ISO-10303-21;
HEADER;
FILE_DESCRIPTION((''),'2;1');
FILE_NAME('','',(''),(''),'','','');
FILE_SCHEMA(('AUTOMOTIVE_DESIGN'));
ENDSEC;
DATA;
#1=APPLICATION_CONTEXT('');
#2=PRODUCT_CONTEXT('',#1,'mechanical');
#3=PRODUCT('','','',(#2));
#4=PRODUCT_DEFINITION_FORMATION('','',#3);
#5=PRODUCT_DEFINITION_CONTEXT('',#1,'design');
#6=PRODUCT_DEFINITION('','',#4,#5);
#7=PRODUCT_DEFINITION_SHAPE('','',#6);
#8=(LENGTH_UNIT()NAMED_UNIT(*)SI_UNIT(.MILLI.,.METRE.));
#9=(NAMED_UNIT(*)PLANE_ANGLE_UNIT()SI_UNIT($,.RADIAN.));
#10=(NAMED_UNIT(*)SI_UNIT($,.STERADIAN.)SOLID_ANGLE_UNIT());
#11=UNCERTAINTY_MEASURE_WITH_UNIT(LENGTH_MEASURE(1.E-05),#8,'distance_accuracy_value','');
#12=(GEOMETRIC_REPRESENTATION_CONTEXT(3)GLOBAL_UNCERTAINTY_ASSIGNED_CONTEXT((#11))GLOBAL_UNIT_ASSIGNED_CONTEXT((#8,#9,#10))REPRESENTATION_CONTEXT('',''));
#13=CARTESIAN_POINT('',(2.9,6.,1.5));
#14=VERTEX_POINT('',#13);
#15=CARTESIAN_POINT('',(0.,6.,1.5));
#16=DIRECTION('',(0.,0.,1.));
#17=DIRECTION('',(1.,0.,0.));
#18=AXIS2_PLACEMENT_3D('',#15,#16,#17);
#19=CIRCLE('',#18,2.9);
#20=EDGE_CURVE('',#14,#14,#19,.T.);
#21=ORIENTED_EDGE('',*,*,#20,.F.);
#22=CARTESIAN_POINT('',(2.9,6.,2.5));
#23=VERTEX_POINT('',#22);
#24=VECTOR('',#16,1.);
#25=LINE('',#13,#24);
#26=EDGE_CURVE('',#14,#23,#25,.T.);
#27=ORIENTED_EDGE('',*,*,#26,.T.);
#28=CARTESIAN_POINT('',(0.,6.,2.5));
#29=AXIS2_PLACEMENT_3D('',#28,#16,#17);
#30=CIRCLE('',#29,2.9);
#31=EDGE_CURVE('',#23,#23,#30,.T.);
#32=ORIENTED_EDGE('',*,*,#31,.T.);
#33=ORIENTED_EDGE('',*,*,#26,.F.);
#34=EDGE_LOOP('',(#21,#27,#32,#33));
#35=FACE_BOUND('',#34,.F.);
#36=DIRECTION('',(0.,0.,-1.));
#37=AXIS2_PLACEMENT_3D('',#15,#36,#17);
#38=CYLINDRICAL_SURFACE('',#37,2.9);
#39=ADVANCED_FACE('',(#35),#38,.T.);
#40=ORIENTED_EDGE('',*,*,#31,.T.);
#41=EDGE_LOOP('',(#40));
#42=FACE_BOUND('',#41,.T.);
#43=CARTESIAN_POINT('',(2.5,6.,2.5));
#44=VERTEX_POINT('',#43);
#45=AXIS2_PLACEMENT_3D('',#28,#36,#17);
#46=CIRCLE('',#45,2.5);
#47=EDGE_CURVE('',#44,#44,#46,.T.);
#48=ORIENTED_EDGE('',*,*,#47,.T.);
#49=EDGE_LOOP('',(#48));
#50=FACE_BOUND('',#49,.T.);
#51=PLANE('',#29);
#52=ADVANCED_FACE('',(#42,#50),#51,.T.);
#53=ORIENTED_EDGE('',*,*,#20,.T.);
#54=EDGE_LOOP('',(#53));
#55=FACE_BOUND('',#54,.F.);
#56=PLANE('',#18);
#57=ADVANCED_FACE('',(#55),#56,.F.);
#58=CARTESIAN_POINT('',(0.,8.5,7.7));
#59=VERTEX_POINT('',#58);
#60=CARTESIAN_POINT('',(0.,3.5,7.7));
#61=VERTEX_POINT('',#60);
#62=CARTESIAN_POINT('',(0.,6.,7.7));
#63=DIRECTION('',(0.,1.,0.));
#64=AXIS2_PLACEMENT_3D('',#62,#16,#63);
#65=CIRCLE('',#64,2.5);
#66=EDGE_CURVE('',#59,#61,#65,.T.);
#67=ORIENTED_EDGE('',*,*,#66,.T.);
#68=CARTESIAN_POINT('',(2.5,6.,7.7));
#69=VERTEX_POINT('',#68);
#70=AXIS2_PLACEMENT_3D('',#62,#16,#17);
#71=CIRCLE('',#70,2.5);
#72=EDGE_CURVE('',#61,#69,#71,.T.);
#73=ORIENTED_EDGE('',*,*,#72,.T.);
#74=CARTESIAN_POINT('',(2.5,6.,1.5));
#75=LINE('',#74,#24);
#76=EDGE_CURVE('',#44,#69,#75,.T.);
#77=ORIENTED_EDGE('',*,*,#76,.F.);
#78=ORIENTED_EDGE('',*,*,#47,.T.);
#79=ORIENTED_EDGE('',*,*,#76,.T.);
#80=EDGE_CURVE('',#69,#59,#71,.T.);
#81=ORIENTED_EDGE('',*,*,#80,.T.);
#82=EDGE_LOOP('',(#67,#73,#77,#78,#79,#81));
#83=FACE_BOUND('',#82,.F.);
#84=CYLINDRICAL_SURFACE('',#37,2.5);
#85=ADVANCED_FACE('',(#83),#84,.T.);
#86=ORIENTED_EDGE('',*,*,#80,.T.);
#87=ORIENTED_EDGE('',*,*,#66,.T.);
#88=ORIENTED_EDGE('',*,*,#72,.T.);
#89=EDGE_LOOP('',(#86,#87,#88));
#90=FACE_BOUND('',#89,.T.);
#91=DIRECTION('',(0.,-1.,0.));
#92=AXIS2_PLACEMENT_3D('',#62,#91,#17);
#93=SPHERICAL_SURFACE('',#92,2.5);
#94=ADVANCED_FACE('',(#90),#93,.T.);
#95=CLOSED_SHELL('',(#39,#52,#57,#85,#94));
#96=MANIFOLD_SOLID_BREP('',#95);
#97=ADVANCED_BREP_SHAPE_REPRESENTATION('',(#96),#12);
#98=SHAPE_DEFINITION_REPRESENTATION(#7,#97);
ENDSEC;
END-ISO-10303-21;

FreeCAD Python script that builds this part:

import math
import FreeCAD as App
import Part
import Sketcher

V = App.Vector
Q = App.Units.Quantity

doc = App.newDocument("Part")
body = doc.addObject("PartDesign::Body", "Body")

sketch1 = body.newObject("Sketcher::SketchObject", "Sketch")
sketch1.AttachmentSupport = (doc.getObject("XY_Plane"), [""])
sketch1.MapMode = "FlatFace"
sketch1.addGeometry(Part.Circle(V(0, 0, 0), V(0, 0, 1), 2.9), False)
sketch1.addConstraint(Sketcher.Constraint("Coincident", 0, 3, -1, 1))
sketch1.addConstraint(Sketcher.Constraint("Diameter", 0, Q("5.8 mm")))
pad1 = body.newObject("PartDesign::Pad", "Pad")
pad1.Profile = sketch1
pad1.Length = 1
body2 = doc.addObject("PartDesign::Body", "Body001")

sketch2 = body2.newObject("Sketcher::SketchObject", "Sketch001")
sketch2.AttachmentSupport = (doc.getObject("XZ_Plane001"), [""])
sketch2.MapMode = "FlatFace"
sketch2.addGeometry(Part.ArcOfCircle(Part.Circle(V(0, 0, 0), V(0, 0, 1), 2.5), math.radians(-90), math.radians(90)), False)
sketch2.addGeometry(Part.LineSegment(V(0, 2.5, 0), V(0, -2.5, 0)), False)
sketch2.addConstraint(Sketcher.Constraint("Coincident", 0, 1, 1, 2))
sketch2.addConstraint(Sketcher.Constraint("Coincident", 1, 1, 0, 2))
sketch2.addConstraint(Sketcher.Constraint("Vertical", 1))
sketch2.addConstraint(Sketcher.Constraint("Coincident", 0, 3, -1, 1))
sketch2.addConstraint(Sketcher.Constraint("PointOnObject", 0, 1, -2))
sketch2.addConstraint(Sketcher.Constraint("Radius", 0, Q("2.5 mm")))
revolution = body2.newObject("PartDesign::Revolution", "Revolution")
revolution.Profile = sketch2
revolution.ReferenceAxis = (sketch2, ["V_Axis"])
revolution.Angle = 180
body3 = doc.addObject("PartDesign::Body", "Body002")
doc.recompute()

body2.Placement = App.Placement(V(0, 0, 0), App.Rotation(V(1, 0, 0), 90))
boolean = body3.newObject("PartDesign::Boolean", "Boolean")
boolean.Type = "Fuse"
boolean.addObjects([body2])
body4 = doc.addObject("PartDesign::Body", "Body003")
doc.recompute()

body3.Placement = App.Placement(V(0, 0, 6.2), App.Rotation(V(0, 0, 1), 0))
boolean2 = body4.newObject("PartDesign::Boolean", "Boolean001")
boolean2.Type = "Fuse"
boolean2.addObjects([body3])
body5 = doc.addObject("PartDesign::Body", "Body004")

sketch3 = body5.newObject("Sketcher::SketchObject", "Sketch002")
sketch3.AttachmentSupport = (doc.getObject("XY_Plane004"), [""])
sketch3.MapMode = "FlatFace"
sketch3.addGeometry(Part.Circle(V(0, 0, 0), V(0, 0, 1), 2.5), False)
sketch3.addConstraint(Sketcher.Constraint("Coincident", 0, 3, -1, 1))
sketch3.addConstraint(Sketcher.Constraint("Diameter", 0, Q("5 mm")))
pad2 = body5.newObject("PartDesign::Pad", "Pad001")
pad2.Profile = sketch3
pad2.Length = 6.2
doc.recompute()

boolean3 = body5.newObject("PartDesign::Boolean", "Boolean002")
boolean3.Type = "Fuse"
boolean3.addObjects([body])
doc.recompute()

boolean4 = body5.newObject("PartDesign::Boolean", "Boolean003")
boolean4.Type = "Fuse"
boolean4.addObjects([body4])
body6 = doc.addObject("PartDesign::Body", "Body005")
doc.recompute()

body5.Placement = App.Placement(V(0, 6, 1.5), App.Rotation(V(0, 0, 1), 0))
boolean5 = body6.newObject("PartDesign::Boolean", "Boolean004")
boolean5.Type = "Fuse"
boolean5.addObjects([body5])

doc.recompute()
